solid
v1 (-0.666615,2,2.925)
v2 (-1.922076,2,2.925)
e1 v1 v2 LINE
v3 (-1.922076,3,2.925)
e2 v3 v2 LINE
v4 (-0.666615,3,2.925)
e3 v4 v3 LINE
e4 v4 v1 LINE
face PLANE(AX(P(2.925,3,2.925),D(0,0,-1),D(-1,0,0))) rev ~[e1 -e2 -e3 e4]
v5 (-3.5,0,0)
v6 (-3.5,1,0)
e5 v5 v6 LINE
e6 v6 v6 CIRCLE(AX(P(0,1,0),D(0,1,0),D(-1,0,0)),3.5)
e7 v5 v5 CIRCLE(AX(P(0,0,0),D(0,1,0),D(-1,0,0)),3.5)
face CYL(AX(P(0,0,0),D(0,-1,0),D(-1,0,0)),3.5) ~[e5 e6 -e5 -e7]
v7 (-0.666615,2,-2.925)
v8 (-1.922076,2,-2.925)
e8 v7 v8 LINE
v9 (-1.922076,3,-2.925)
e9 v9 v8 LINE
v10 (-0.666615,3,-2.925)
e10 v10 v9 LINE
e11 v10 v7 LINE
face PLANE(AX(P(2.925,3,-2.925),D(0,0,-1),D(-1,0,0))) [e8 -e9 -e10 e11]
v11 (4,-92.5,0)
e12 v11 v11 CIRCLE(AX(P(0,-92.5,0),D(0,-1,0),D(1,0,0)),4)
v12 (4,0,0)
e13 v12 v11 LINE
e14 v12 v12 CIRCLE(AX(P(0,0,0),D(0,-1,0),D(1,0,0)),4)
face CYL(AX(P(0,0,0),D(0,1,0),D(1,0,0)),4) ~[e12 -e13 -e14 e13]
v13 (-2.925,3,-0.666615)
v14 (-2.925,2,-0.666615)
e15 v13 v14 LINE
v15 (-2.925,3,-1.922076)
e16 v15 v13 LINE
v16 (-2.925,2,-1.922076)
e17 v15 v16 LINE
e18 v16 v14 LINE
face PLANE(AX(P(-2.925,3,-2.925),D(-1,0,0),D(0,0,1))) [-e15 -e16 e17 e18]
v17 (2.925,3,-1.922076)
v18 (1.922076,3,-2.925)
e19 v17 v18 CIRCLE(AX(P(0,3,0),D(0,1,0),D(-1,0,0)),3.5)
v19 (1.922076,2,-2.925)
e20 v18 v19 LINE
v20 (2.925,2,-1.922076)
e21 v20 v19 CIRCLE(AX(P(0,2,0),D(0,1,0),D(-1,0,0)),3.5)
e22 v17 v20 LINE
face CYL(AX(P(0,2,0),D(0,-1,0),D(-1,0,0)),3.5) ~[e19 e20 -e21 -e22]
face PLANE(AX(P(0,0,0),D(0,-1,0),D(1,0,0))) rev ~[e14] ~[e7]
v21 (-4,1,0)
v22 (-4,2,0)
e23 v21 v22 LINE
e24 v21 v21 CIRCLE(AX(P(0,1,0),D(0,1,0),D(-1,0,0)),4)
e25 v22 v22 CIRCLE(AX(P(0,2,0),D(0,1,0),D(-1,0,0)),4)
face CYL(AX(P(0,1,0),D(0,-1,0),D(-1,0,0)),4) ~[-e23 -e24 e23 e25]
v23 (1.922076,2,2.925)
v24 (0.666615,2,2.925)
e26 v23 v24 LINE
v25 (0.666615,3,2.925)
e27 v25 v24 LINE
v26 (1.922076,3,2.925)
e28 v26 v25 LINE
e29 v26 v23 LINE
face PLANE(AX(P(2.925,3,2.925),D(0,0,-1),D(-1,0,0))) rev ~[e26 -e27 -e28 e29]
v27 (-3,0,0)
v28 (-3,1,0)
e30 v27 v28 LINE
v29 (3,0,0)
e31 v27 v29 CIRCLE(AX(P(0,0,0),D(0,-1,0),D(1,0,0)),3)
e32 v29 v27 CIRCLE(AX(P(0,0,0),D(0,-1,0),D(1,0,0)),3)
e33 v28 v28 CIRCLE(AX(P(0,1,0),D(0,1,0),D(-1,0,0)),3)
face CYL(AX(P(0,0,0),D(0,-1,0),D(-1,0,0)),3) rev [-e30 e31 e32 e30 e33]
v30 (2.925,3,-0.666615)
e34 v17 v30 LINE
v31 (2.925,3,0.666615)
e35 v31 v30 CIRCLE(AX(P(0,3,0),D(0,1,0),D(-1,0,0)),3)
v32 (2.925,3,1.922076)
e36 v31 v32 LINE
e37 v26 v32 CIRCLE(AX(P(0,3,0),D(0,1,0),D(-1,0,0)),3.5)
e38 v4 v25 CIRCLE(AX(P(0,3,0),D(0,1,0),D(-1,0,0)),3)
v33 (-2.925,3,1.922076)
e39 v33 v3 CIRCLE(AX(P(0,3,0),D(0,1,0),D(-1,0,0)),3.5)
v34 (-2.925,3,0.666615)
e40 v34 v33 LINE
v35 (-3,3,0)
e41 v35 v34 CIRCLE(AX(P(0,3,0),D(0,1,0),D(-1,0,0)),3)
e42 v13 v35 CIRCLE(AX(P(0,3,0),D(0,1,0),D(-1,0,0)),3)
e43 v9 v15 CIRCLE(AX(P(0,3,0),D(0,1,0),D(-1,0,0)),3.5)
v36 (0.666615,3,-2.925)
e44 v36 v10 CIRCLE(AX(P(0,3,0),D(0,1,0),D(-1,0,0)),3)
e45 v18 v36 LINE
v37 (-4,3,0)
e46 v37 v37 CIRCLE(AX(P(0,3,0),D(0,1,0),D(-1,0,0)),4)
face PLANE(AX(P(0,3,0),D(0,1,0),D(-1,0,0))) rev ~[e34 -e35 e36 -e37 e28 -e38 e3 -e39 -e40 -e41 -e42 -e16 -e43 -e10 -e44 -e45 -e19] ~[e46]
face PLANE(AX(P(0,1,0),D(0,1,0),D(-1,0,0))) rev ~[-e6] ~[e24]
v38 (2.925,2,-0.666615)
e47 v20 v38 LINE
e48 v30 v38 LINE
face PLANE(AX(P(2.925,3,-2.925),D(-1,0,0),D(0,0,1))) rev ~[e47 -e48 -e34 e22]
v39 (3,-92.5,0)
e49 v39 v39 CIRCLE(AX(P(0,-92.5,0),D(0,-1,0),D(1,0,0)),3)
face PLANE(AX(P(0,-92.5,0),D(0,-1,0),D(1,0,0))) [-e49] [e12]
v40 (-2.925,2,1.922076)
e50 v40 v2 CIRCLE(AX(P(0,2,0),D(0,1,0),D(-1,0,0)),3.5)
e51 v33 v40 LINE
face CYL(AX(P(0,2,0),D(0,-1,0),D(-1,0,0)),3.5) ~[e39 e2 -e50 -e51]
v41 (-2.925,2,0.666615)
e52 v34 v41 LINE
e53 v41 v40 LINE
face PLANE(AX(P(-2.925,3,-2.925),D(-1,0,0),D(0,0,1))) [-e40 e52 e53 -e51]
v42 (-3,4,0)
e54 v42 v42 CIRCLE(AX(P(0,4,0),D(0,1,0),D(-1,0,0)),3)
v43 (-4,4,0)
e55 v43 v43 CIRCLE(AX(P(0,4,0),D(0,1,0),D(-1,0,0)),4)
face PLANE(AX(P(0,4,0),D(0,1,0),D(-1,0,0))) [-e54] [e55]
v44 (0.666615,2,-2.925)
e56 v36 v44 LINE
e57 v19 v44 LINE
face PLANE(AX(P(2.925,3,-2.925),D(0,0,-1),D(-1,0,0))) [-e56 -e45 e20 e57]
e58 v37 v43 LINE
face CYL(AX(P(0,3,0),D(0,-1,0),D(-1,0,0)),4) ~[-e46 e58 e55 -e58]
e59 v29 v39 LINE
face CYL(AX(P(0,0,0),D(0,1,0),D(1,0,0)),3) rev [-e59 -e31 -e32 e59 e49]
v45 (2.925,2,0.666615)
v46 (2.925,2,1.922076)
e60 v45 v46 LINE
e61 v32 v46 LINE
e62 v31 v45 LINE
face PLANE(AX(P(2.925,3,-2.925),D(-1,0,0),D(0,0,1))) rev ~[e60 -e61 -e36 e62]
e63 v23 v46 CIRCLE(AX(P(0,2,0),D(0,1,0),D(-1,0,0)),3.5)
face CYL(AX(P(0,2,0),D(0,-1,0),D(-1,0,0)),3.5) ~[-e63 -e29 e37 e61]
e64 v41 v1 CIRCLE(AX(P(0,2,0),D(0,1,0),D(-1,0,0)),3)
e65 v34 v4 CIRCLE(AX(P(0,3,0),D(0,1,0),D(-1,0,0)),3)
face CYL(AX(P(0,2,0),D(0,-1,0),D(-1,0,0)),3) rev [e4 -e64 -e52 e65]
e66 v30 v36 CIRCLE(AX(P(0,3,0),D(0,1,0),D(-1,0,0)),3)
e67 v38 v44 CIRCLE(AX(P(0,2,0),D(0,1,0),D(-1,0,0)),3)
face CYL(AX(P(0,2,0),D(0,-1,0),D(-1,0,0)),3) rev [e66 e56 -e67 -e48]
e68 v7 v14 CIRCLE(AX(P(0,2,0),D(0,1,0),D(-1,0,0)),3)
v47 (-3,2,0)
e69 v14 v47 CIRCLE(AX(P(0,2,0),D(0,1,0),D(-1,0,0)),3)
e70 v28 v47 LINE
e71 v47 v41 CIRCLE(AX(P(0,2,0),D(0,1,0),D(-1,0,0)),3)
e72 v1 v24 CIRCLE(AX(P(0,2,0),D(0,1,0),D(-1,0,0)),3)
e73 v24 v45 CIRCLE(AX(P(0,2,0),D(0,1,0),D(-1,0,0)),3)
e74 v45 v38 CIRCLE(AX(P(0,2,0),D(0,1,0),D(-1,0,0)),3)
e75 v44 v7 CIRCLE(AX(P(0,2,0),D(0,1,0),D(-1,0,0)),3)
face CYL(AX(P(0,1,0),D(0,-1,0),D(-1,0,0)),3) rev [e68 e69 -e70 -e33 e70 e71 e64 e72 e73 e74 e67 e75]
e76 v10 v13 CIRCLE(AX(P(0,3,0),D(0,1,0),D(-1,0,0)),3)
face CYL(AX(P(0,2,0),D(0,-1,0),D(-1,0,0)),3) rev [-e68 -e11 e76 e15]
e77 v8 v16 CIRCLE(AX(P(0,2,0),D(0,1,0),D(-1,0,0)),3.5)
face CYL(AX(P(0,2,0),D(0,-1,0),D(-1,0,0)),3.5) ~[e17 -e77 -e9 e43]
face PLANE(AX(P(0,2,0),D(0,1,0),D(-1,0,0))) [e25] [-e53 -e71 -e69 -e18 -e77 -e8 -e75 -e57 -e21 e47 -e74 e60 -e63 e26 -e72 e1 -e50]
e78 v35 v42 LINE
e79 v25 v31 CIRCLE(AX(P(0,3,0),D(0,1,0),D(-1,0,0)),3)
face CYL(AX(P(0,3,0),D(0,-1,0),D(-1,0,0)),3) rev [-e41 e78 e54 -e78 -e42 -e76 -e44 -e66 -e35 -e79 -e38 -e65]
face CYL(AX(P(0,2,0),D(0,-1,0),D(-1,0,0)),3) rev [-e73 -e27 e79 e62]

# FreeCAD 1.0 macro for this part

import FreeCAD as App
import Part
import Sketcher

V = App.Vector
Q = App.Units.Quantity

doc = App.newDocument("Part")
body = doc.addObject("PartDesign::Body", "Body")

# Sketch on XZ plane
sketch1 = body.newObject("Sketcher::SketchObject", "Sketch")
sketch1.AttachmentSupport = (doc.getObject("XZ_Plane"), [""])
sketch1.MapMode = "FlatFace"
sketch1.addGeometry([
    Part.Circle(V(0, 0, 0), V(0, 0, 1), 4),
    Part.Circle(V(0, 0, 0), V(0, 0, 1), 3),
], False)
sketch1.addConstraint([
    Sketcher.Constraint("Coincident", 0, 3, -1, 1),
    Sketcher.Constraint("Coincident", 1, 3, -1, 1),
    Sketcher.Constraint("Diameter", 0, Q("8 mm")),
    Sketcher.Constraint("Diameter", 1, Q("6 mm")),
])
pad1 = body.newObject("PartDesign::Pad", "Pad")
pad1.Profile = sketch1
pad1.Length = 92.5

# Sketch on XZ plane
sketch2 = body.newObject("Sketcher::SketchObject", "Sketch001")
sketch2.AttachmentSupport = (doc.getObject("XZ_Plane"), [""])
sketch2.MapMode = "FlatFace"
sketch2.addGeometry([
    Part.Circle(V(0, 0, 0), V(0, 0, 1), 3.5),
    Part.Circle(V(0, 0, 0), V(0, 0, 1), 3),
], False)
sketch2.addConstraint([
    Sketcher.Constraint("Coincident", 0, 3, -1, 1),
    Sketcher.Constraint("Coincident", 1, 3, -1, 1),
    Sketcher.Constraint("Diameter", 0, Q("7 mm")),
    Sketcher.Constraint("Diameter", 1, Q("6 mm")),
])
pad2 = body.newObject("PartDesign::Pad", "Pad001")
pad2.Profile = sketch2
pad2.Length = 1
pad2.Reversed = True

# Sketch on XZ plane
sketch3 = body.newObject("Sketcher::SketchObject", "Sketch002")
sketch3.AttachmentSupport = (doc.getObject("XZ_Plane"), [""])
sketch3.MapMode = "FlatFace"
sketch3.AttachmentOffset = App.Placement(V(0, 0, -1), App.Rotation())
sketch3.addGeometry([
    Part.Circle(V(0, 0, 0), V(0, 0, 1), 4),
    Part.Circle(V(0, 0, 0), V(0, 0, 1), 3),
], False)
sketch3.addConstraint([
    Sketcher.Constraint("Coincident", 0, 3, -1, 1),
    Sketcher.Constraint("Coincident", 1, 3, -1, 1),
    Sketcher.Constraint("Diameter", 0, Q("8 mm")),
    Sketcher.Constraint("Diameter", 1, Q("6 mm")),
])
pad3 = body.newObject("PartDesign::Pad", "Pad002")
pad3.Profile = sketch3
pad3.Length = 1
pad3.Reversed = True

# Sketch on XZ plane
sketch4 = body.newObject("Sketcher::SketchObject", "Sketch003")
sketch4.AttachmentSupport = (doc.getObject("XZ_Plane"), [""])
sketch4.MapMode = "FlatFace"
sketch4.AttachmentOffset = App.Placement(V(0, 0, -2), App.Rotation())
sketch4.addGeometry([
    Part.Circle(V(0, 0, 0), V(0, 0, 1), 3.5),
    Part.Circle(V(0, 0, 0), V(0, 0, 1), 3),
], False)
sketch4.addConstraint([
    Sketcher.Constraint("Coincident", 0, 3, -1, 1),
    Sketcher.Constraint("Coincident", 1, 3, -1, 1),
    Sketcher.Constraint("Diameter", 0, Q("7 mm")),
    Sketcher.Constraint("Diameter", 1, Q("6 mm")),
])
pad4 = body.newObject("PartDesign::Pad", "Pad003")
pad4.Profile = sketch4
pad4.Length = 1
pad4.Reversed = True

# Sketch on XZ plane
sketch5 = body.newObject("Sketcher::SketchObject", "Sketch004")
sketch5.AttachmentSupport = (doc.getObject("XZ_Plane"), [""])
sketch5.MapMode = "FlatFace"
sketch5.AttachmentOffset = App.Placement(V(0, 0, -3), App.Rotation())
sketch5.addGeometry([
    Part.LineSegment(V(5, 5, 0), V(5, -5, 0)),  # 0
    Part.LineSegment(V(5, -5, 0), V(-5, -5, 0)),  # 1
    Part.LineSegment(V(-5, -5, 0), V(-5, 5, 0)),  # 2
    Part.LineSegment(V(-5, 5, 0), V(5, 5, 0)),  # 3
    Part.LineSegment(V(-3, -3, 0), V(3, -3, 0)),  # 4
    Part.LineSegment(V(3, -3, 0), V(3, 3, 0)),  # 5
    Part.LineSegment(V(3, 3, 0), V(-3, 3, 0)),  # 6
    Part.LineSegment(V(-3, 3, 0), V(-3, -3, 0)),  # 7
], False)
sketch5.addConstraint([
    Sketcher.Constraint("Coincident", 0, 2, 1, 1),
    Sketcher.Constraint("Coincident", 1, 2, 2, 1),
    Sketcher.Constraint("Coincident", 2, 2, 3, 1),
    Sketcher.Constraint("Coincident", 3, 2, 0, 1),
    Sketcher.Constraint("Coincident", 4, 2, 5, 1),
    Sketcher.Constraint("Coincident", 5, 2, 6, 1),
    Sketcher.Constraint("Coincident", 6, 2, 7, 1),
    Sketcher.Constraint("Coincident", 7, 2, 4, 1),
    Sketcher.Constraint("Vertical", 0),
    Sketcher.Constraint("Horizontal", 1),
    Sketcher.Constraint("Vertical", 2),
    Sketcher.Constraint("Horizontal", 3),
    Sketcher.Constraint("Horizontal", 4),
    Sketcher.Constraint("Vertical", 5),
    Sketcher.Constraint("Horizontal", 6),
    Sketcher.Constraint("Vertical", 7),
    Sketcher.Constraint("Symmetric", 4, 2, 6, 2, -1, 1),
    Sketcher.Constraint("Equal", 6, 5),
    Sketcher.Constraint("DistanceX", 4, 1, 4, 2, Q("5.85 mm")),
    Sketcher.Constraint("DistanceY", 0, 2, 0, 1, Q("9.632848 mm")),
    Sketcher.Constraint("DistanceX", 1, 2, 1, 1, Q("10.237458 mm")),
    Sketcher.Constraint("DistanceX", 1, 2, -1, 1, Q("5.33094 mm")),
    Sketcher.Constraint("DistanceY", -1, 1, 2, 2, Q("4.814012 mm")),
])
pocket1 = body.newObject("PartDesign::Pocket", "Pocket")
pocket1.Profile = sketch5
pocket1.Length = 1
pocket1.Reversed = True

# Sketch on XZ plane
sketch6 = body.newObject("Sketcher::SketchObject", "Sketch005")
sketch6.AttachmentSupport = (doc.getObject("XZ_Plane"), [""])
sketch6.MapMode = "FlatFace"
sketch6.AttachmentOffset = App.Placement(V(0, 0, -3), App.Rotation())
sketch6.addGeometry([
    Part.Circle(V(0, 0, 0), V(0, 0, 1), 4),
    Part.Circle(V(0, 0, 0), V(0, 0, 1), 3),
], False)
sketch6.addConstraint([
    Sketcher.Constraint("Coincident", 0, 3, -1, 1),
    Sketcher.Constraint("Coincident", 1, 3, -1, 1),
    Sketcher.Constraint("Diameter", 0, Q("8 mm")),
    Sketcher.Constraint("Diameter", 1, Q("6 mm")),
])
pad5 = body.newObject("PartDesign::Pad", "Pad004")
pad5.Profile = sketch6
pad5.Length = 1
pad5.Reversed = True

doc.recompute()
